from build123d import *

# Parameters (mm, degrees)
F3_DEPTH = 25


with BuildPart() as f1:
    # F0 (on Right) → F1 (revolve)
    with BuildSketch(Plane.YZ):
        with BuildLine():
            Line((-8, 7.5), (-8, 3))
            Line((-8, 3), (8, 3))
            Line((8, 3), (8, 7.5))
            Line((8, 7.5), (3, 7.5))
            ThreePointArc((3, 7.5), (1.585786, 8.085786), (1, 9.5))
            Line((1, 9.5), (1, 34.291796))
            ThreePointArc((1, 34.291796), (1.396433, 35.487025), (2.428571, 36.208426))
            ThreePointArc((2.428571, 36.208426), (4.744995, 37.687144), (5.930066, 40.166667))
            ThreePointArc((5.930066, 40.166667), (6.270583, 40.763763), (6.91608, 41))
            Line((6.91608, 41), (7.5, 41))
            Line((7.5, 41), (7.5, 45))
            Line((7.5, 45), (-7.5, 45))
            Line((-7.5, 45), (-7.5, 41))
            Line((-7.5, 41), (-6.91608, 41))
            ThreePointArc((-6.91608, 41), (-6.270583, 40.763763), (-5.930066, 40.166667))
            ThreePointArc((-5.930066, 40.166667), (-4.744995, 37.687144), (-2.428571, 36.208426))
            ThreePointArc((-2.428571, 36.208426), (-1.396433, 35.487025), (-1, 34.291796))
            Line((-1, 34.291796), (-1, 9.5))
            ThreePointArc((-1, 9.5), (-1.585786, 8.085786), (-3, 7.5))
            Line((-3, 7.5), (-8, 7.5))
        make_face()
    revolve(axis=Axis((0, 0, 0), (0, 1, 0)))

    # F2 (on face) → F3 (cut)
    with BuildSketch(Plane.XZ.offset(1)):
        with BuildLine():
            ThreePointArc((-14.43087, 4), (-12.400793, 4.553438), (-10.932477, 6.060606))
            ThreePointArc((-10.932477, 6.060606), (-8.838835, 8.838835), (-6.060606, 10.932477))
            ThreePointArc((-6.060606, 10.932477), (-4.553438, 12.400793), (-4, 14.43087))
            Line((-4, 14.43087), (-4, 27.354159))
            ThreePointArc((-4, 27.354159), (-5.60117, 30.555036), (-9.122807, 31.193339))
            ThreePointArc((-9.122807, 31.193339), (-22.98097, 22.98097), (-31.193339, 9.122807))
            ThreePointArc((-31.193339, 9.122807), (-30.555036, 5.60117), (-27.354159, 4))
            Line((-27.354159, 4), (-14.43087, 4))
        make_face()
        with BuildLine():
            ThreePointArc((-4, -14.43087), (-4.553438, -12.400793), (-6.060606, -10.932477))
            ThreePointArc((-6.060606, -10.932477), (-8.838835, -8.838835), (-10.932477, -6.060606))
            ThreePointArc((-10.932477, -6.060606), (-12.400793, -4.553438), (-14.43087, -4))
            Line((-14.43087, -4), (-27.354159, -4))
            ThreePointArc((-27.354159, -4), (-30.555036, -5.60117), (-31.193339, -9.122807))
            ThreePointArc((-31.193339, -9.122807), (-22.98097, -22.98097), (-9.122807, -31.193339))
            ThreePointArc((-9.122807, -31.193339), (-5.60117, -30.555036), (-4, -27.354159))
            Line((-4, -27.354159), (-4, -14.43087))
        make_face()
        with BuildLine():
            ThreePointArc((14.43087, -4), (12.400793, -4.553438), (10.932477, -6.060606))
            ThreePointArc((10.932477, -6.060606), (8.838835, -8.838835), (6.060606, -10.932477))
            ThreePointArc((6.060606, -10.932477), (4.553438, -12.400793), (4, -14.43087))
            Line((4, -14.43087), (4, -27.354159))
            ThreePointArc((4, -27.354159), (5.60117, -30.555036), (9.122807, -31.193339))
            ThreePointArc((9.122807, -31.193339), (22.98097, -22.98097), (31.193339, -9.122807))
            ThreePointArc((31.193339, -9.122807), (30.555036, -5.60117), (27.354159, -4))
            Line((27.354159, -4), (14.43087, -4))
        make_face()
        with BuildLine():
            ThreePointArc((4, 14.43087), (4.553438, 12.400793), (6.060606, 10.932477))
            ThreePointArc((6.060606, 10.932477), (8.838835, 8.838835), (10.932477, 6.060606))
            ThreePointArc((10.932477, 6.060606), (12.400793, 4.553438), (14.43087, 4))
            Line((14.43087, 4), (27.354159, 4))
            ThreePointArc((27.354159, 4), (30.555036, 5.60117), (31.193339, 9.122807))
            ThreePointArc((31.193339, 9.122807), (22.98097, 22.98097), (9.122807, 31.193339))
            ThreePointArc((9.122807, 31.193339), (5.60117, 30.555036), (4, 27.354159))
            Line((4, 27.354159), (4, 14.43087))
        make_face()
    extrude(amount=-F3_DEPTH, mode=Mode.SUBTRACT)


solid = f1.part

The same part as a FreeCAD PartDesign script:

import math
import FreeCAD as App
import Part
import Sketcher

doc = App.newDocument("Part")
body = doc.addObject("PartDesign::Body", "Body")

# Sketch on YZ plane
sketch1 = doc.addObject("Sketcher::SketchObject", "Sketch")
body.addObject(sketch1)
sketch1.AttachmentSupport = (doc.YZ_Plane, [""])
sketch1.MapMode = "FlatFace"
sketch1.addGeometry(Part.LineSegment(App.Vector(-8, 7.5, 0), App.Vector(-8, 3, 0)), False)
sketch1.addGeometry(Part.LineSegment(App.Vector(-8, 3, 0), App.Vector(8, 3, 0)), False)
sketch1.addGeometry(Part.LineSegment(App.Vector(8, 3, 0), App.Vector(8, 7.5, 0)), False)
sketch1.addGeometry(Part.LineSegment(App.Vector(8, 7.5, 0), App.Vector(3, 7.5, 0)), False)
sketch1.addGeometry(Part.ArcOfCircle(Part.Circle(App.Vector(3, 9.5, 0), App.Vector(0, 0, 1), 2), math.radians(180), math.radians(270)), False)
sketch1.addGeometry(Part.LineSegment(App.Vector(1, 9.5, 0), App.Vector(1, 34.3, 0)), False)
sketch1.addGeometry(Part.ArcOfCircle(Part.Circle(App.Vector(3, 34.3, 0), App.Vector(0, 0, 1), 2), math.radians(107), math.radians(180)), False)
sketch1.addGeometry(Part.ArcOfCircle(Part.Circle(App.Vector(1, 41, 0), App.Vector(0, 0, 1), 5), math.radians(-73), math.radians(-10)), False)
sketch1.addGeometry(Part.ArcOfCircle(Part.Circle(App.Vector(6.9, 40, 0), App.Vector(0, 0, 1), 1), math.radians(90), math.radians(170)), False)
sketch1.addGeometry(Part.LineSegment(App.Vector(6.9, 41, 0), App.Vector(7.5, 41, 0)), False)
sketch1.addGeometry(Part.LineSegment(App.Vector(7.5, 41, 0), App.Vector(7.5, 45, 0)), False)
sketch1.addGeometry(Part.LineSegment(App.Vector(7.5, 45, 0), App.Vector(-7.5, 45, 0)), False)
sketch1.addGeometry(Part.LineSegment(App.Vector(-7.5, 45, 0), App.Vector(-7.5, 41, 0)), False)
sketch1.addGeometry(Part.LineSegment(App.Vector(-7.5, 41, 0), App.Vector(-6.9, 41, 0)), False)
sketch1.addGeometry(Part.ArcOfCircle(Part.Circle(App.Vector(-6.9, 40, 0), App.Vector(0, 0, 1), 1), math.radians(10), math.radians(90)), False)
sketch1.addGeometry(Part.ArcOfCircle(Part.Circle(App.Vector(-1, 41, 0), App.Vector(0, 0, 1), 5), math.radians(-170), math.radians(-107)), False)
sketch1.addGeometry(Part.ArcOfCircle(Part.Circle(App.Vector(-3, 34.3, 0), App.Vector(0, 0, 1), 2), math.radians(0), math.radians(73)), False)
sketch1.addGeometry(Part.LineSegment(App.Vector(-1, 34.3, 0), App.Vector(-1, 9.5, 0)), False)
sketch1.addGeometry(Part.ArcOfCircle(Part.Circle(App.Vector(-3, 9.5, 0), App.Vector(0, 0, 1), 2), math.radians(-90), math.radians(0)), False)
sketch1.addGeometry(Part.LineSegment(App.Vector(-3, 7.5, 0), App.Vector(-8, 7.5, 0)), False)
sketch1.addConstraint(Sketcher.Constraint("Coincident", 0, 2, 1, 1))
sketch1.addConstraint(Sketcher.Constraint("Coincident", 1, 2, 2, 1))
sketch1.addConstraint(Sketcher.Constraint("Coincident", 2, 2, 3, 1))
sketch1.addConstraint(Sketcher.Constraint("Tangent", 3, 2, 4, 2))
sketch1.addConstraint(Sketcher.Constraint("Tangent", 4, 1, 5, 1))
sketch1.addConstraint(Sketcher.Constraint("Tangent", 5, 2, 6, 2))
sketch1.addConstraint(Sketcher.Constraint("Tangent", 6, 1, 7, 1))
sketch1.addConstraint(Sketcher.Constraint("Tangent", 7, 2, 8, 2))
sketch1.addConstraint(Sketcher.Constraint("Tangent", 8, 1, 9, 1))
sketch1.addConstraint(Sketcher.Constraint("Coincident", 9, 2, 10, 1))
sketch1.addConstraint(Sketcher.Constraint("Coincident", 10, 2, 11, 1))
sketch1.addConstraint(Sketcher.Constraint("Coincident", 11, 2, 12, 1))
sketch1.addConstraint(Sketcher.Constraint("Coincident", 12, 2, 13, 1))
sketch1.addConstraint(Sketcher.Constraint("Tangent", 13, 2, 14, 2))
sketch1.addConstraint(Sketcher.Constraint("Tangent", 14, 1, 15, 1))
sketch1.addConstraint(Sketcher.Constraint("Tangent", 15, 2, 16, 2))
sketch1.addConstraint(Sketcher.Constraint("Tangent", 16, 1, 17, 1))
sketch1.addConstraint(Sketcher.Constraint("Tangent", 17, 2, 18, 2))
sketch1.addConstraint(Sketcher.Constraint("Tangent", 18, 1, 19, 1))
sketch1.addConstraint(Sketcher.Constraint("Coincident", 19, 2, 0, 1))
sketch1.addConstraint(Sketcher.Constraint("Vertical", 0))
sketch1.addConstraint(Sketcher.Constraint("Horizontal", 1))
sketch1.addConstraint(Sketcher.Constraint("Vertical", 2))
sketch1.addConstraint(Sketcher.Constraint("Horizontal", 3))
sketch1.addConstraint(Sketcher.Constraint("Vertical", 5))
sketch1.addConstraint(Sketcher.Constraint("Horizontal", 9))
sketch1.addConstraint(Sketcher.Constraint("Vertical", 10))
sketch1.addConstraint(Sketcher.Constraint("Horizontal", 11))
sketch1.addConstraint(Sketcher.Constraint("Vertical", 12))
sketch1.addConstraint(Sketcher.Constraint("Horizontal", 13))
sketch1.addConstraint(Sketcher.Constraint("Vertical", 17))
sketch1.addConstraint(Sketcher.Constraint("Horizontal", 19))
sketch1.addConstraint(Sketcher.Constraint("Equal", 8, 14))
sketch1.addConstraint(Sketcher.Constraint("Equal", 7, 15))
sketch1.addConstraint(Sketcher.Constraint("Equal", 6, 16))
sketch1.addConstraint(Sketcher.Constraint("Equal", 4, 18))
sketch1.addConstraint(Sketcher.Constraint("Symmetric", 8, 3, 14, 3, -2))
sketch1.addConstraint(Sketcher.Constraint("Symmetric", 6, 3, 16, 3, -2))
sketch1.addConstraint(Sketcher.Constraint("Symmetric", 2, 2, 19, 2, -2))
sketch1.addConstraint(Sketcher.Constraint("Vertical", 6, 3, 3, 2))
sketch1.addConstraint(Sketcher.Constraint("Equal", 9, 13))
sketch1.addConstraint(Sketcher.Constraint("Radius", 4, 1.999999))
sketch1.addConstraint(Sketcher.Constraint("Radius", 8, 1.000001))
sketch1.addConstraint(Sketcher.Constraint("DistanceX", 1, 1, 1, 2, 16.0))
sketch1.addConstraint(Sketcher.Constraint("DistanceX", 3, 2, 3, 1, 5.0))
sketch1.addConstraint(Sketcher.Constraint("DistanceX", 11, 2, 11, 1, 15.0))
sketch1.addConstraint(Sketcher.Constraint("DistanceY", 10, 1, 10, 2, 4.0))
sketch1.addConstraint(Sketcher.Constraint("DistanceY", 0, 2, 0, 1, 4.5))
sketch1.addConstraint(Sketcher.Constraint("DistanceY", -1, 1, 8, 3, 39.999999))
sketch1.addConstraint(Sketcher.Constraint("DistanceY", -1, 1, 0, 2, 3.0))
sketch1.addConstraint(Sketcher.Constraint("DistanceX", 7, 3, 6, 3, 1.999998))
sketch1.addConstraint(Sketcher.Constraint("DistanceY", 4, 3, 7, 3, 31.499998))
sketch1.addConstraint(Sketcher.Constraint("Radius", 7, 4.999996))
revolution = doc.addObject("PartDesign::Revolution", "Revolution")
body.addObject(revolution)
revolution.Profile = sketch1
revolution.ReferenceAxis = (sketch1, ["H_Axis"])
revolution.Angle = 360

# Sketch on XZ plane
sketch2 = doc.addObject("Sketcher::SketchObject", "Sketch001")
body.addObject(sketch2)
sketch2.AttachmentSupport = (doc.XZ_Plane, [""])
sketch2.MapMode = "FlatFace"
sketch2.AttachmentOffset = App.Placement(App.Vector(0, 0, 1), App.Rotation())
sketch2.addGeometry(Part.ArcOfCircle(Part.Circle(App.Vector(-14.4, 8, 0), App.Vector(0, 0, 1), 4), math.radians(-90), math.radians(-29)), False)
sketch2.addGeometry(Part.ArcOfCircle(Part.Circle(App.Vector(0, 0, 0), App.Vector(0, 0, 1), 12.5), math.radians(119), math.radians(151)), False)
sketch2.addGeometry(Part.ArcOfCircle(Part.Circle(App.Vector(-8, 14.4, 0), App.Vector(0, 0, 1), 4), math.radians(-61), math.radians(0)), False)
sketch2.addGeometry(Part.LineSegment(App.Vector(-4, 14.4, 0), App.Vector(-4, 27.4, 0)), False)
sketch2.addGeometry(Part.ArcOfCircle(Part.Circle(App.Vector(-8, 27.4, 0), App.Vector(0, 0, 1), 4), math.radians(0), math.radians(106)), False)
sketch2.addGeometry(Part.ArcOfCircle(Part.Circle(App.Vector(0, 0, 0), App.Vector(0, 0, 1), 32.5), math.radians(106), math.radians(164)), False)
sketch2.addGeometry(Part.ArcOfCircle(Part.Circle(App.Vector(-27.4, 8, 0), App.Vector(0, 0, 1), 4), math.radians(164), math.radians(270)), False)
sketch2.addGeometry(Part.LineSegment(App.Vector(-27.4, 4, 0), App.Vector(-14.4, 4, 0)), False)
sketch2.addGeometry(Part.ArcOfCircle(Part.Circle(App.Vector(-8, -14.4, 0), App.Vector(0, 0, 1), 4), math.radians(0), math.radians(61)), False)
sketch2.addGeometry(Part.ArcOfCircle(Part.Circle(App.Vector(0, 0, 0), App.Vector(0, 0, 1), 12.5), math.radians(-151), math.radians(-119)), False)
sketch2.addGeometry(Part.ArcOfCircle(Part.Circle(App.Vector(-14.4, -8, 0), App.Vector(0, 0, 1), 4), math.radians(29), math.radians(90)), False)
sketch2.addGeometry(Part.LineSegment(App.Vector(-14.4, -4, 0), App.Vector(-27.4, -4, 0)), False)
sketch2.addGeometry(Part.ArcOfCircle(Part.Circle(App.Vector(-27.4, -8, 0), App.Vector(0, 0, 1), 4), math.radians(90), math.radians(196)), False)
sketch2.addGeometry(Part.ArcOfCircle(Part.Circle(App.Vector(0, 0, 0), App.Vector(0, 0, 1), 32.5), math.radians(-164), math.radians(-106)), False)
sketch2.addGeometry(Part.ArcOfCircle(Part.Circle(App.Vector(-8, -27.4, 0), App.Vector(0, 0, 1), 4), math.radians(-106), math.radians(0)), False)
sketch2.addGeometry(Part.LineSegment(App.Vector(-4, -27.4, 0), App.Vector(-4, -14.4, 0)), False)
sketch2.addGeometry(Part.ArcOfCircle(Part.Circle(App.Vector(14.4, -8, 0), App.Vector(0, 0, 1), 4), math.radians(90), math.radians(151)), False)
sketch2.addGeometry(Part.ArcOfCircle(Part.Circle(App.Vector(0, 0, 0), App.Vector(0, 0, 1), 12.5), math.radians(-61), math.radians(-29)), False)
sketch2.addGeometry(Part.ArcOfCircle(Part.Circle(App.Vector(8, -14.4, 0), App.Vector(0, 0, 1), 4), math.radians(119), math.radians(180)), False)
sketch2.addGeometry(Part.LineSegment(App.Vector(4, -14.4, 0), App.Vector(4, -27.4, 0)), False)
sketch2.addGeometry(Part.ArcOfCircle(Part.Circle(App.Vector(8, -27.4, 0), App.Vector(0, 0, 1), 4), math.radians(-180), math.radians(-74)), False)
sketch2.addGeometry(Part.ArcOfCircle(Part.Circle(App.Vector(0, 0, 0), App.Vector(0, 0, 1), 32.5), math.radians(-74), math.radians(-16)), False)
sketch2.addGeometry(Part.ArcOfCircle(Part.Circle(App.Vector(27.4, -8, 0), App.Vector(0, 0, 1), 4), math.radians(-16), math.radians(90)), False)
sketch2.addGeometry(Part.LineSegment(App.Vector(27.4, -4, 0), App.Vector(14.4, -4, 0)), False)
sketch2.addGeometry(Part.ArcOfCircle(Part.Circle(App.Vector(8, 14.4, 0), App.Vector(0, 0, 1), 4), math.radians(180), math.radians(241)), False)
sketch2.addGeometry(Part.ArcOfCircle(Part.Circle(App.Vector(0, 0, 0), App.Vector(0, 0, 1), 12.5), math.radians(29), math.radians(61)), False)
sketch2.addGeometry(Part.ArcOfCircle(Part.Circle(App.Vector(14.4, 8, 0), App.Vector(0, 0, 1), 4), math.radians(-151), math.radians(-90)), False)
sketch2.addGeometry(Part.LineSegment(App.Vector(14.4, 4, 0), App.Vector(27.4, 4, 0)), False)
sketch2.addGeometry(Part.ArcOfCircle(Part.Circle(App.Vector(27.4, 8, 0), App.Vector(0, 0, 1), 4), math.radians(-90), math.radians(16)), False)
sketch2.addGeometry(Part.ArcOfCircle(Part.Circle(App.Vector(0, 0, 0), App.Vector(0, 0, 1), 32.5), math.radians(16), math.radians(74)), False)
sketch2.addGeometry(Part.ArcOfCircle(Part.Circle(App.Vector(8, 27.4, 0), App.Vector(0, 0, 1), 4), math.radians(74), math.radians(180)), False)
sketch2.addGeometry(Part.LineSegment(App.Vector(4, 27.4, 0), App.Vector(4, 14.4, 0)), False)
sketch2.addConstraint(Sketcher.Constraint("Tangent", 0, 2, 1, 2))
sketch2.addConstraint(Sketcher.Constraint("Tangent", 1, 1, 2, 1))
sketch2.addConstraint(Sketcher.Constraint("Tangent", 2, 2, 3, 1))
sketch2.addConstraint(Sketcher.Constraint("Tangent", 3, 2, 4, 1))
sketch2.addConstraint(Sketcher.Constraint("Tangent", 4, 2, 5, 1))
sketch2.addConstraint(Sketcher.Constraint("Tangent", 5, 2, 6, 1))
sketch2.addConstraint(Sketcher.Constraint("Tangent", 6, 2, 7, 1))
sketch2.addConstraint(Sketcher.Constraint("Tangent", 7, 2, 0, 1))
sketch2.addConstraint(Sketcher.Constraint("Tangent", 8, 2, 9, 2))
sketch2.addConstraint(Sketcher.Constraint("Tangent", 9, 1, 10, 1))
sketch2.addConstraint(Sketcher.Constraint("Tangent", 10, 2, 11, 1))
sketch2.addConstraint(Sketcher.Constraint("Tangent", 11, 2, 12, 1))
sketch2.addConstraint(Sketcher.Constraint("Tangent", 12, 2, 13, 1))
sketch2.addConstraint(Sketcher.Constraint("Tangent", 13, 2, 14, 1))
sketch2.addConstraint(Sketcher.Constraint("Tangent", 14, 2, 15, 1))
sketch2.addConstraint(Sketcher.Constraint("Tangent", 15, 2, 8, 1))
sketch2.addConstraint(Sketcher.Constraint("Tangent", 16, 2, 17, 2))
sketch2.addConstraint(Sketcher.Constraint("Tangent", 17, 1, 18, 1))
sketch2.addConstraint(Sketcher.Constraint("Tangent", 18, 2, 19, 1))
sketch2.addConstraint(Sketcher.Constraint("Tangent", 19, 2, 20, 1))
sketch2.addConstraint(Sketcher.Constraint("Tangent", 20, 2, 21, 1))
sketch2.addConstraint(Sketcher.Constraint("Tangent", 21, 2, 22, 1))
sketch2.addConstraint(Sketcher.Constraint("Tangent", 22, 2, 23, 1))
sketch2.addConstraint(Sketcher.Constraint("Tangent", 23, 2, 16, 1))
sketch2.addConstraint(Sketcher.Constraint("Tangent", 24, 2, 25, 2))
sketch2.addConstraint(Sketcher.Constraint("Tangent", 25, 1, 26, 1))
sketch2.addConstraint(Sketcher.Constraint("Tangent", 26, 2, 27, 1))
sketch2.addConstraint(Sketcher.Constraint("Tangent", 27, 2, 28, 1))
sketch2.addConstraint(Sketcher.Constraint("Tangent", 28, 2, 29, 1))
sketch2.addConstraint(Sketcher.Constraint("Tangent", 29, 2, 30, 1))
sketch2.addConstraint(Sketcher.Constraint("Tangent", 30, 2, 31, 1))
sketch2.addConstraint(Sketcher.Constraint("Tangent", 31, 2, 24, 1))
sketch2.addConstraint(Sketcher.Constraint("Vertical", 3))
sketch2.addConstraint(Sketcher.Constraint("Horizontal", 7))
sketch2.addConstraint(Sketcher.Constraint("Horizontal", 11))
sketch2.addConstraint(Sketcher.Constraint("Vertical", 15))
sketch2.addConstraint(Sketcher.Constraint("Vertical", 19))
sketch2.addConstraint(Sketcher.Constraint("Horizontal", 23))
sketch2.addConstraint(Sketcher.Constraint("Horizontal", 27))
sketch2.addConstraint(Sketcher.Constraint("Vertical", 31))
sketch2.addConstraint(Sketcher.Constraint("Coincident", 5, 3, -1, 1))
sketch2.addConstraint(Sketcher.Constraint("Coincident", 13, 3, -1, 1))
sketch2.addConstraint(Sketcher.Constraint("Coincident", 21, 3, -1, 1))
sketch2.addConstraint(Sketcher.Constraint("Coincident", 29, 3, -1, 1))
sketch2.addConstraint(Sketcher.Constraint("Coincident", 17, 3, 5, 3))
sketch2.addConstraint(Sketcher.Constraint("Coincident", 21, 3, 1, 3))
sketch2.addConstraint(Sketcher.Constraint("Coincident", 25, 3, 13, 3))
sketch2.addConstraint(Sketcher.Constraint("Equal", 0, 2))
sketch2.addConstraint(Sketcher.Constraint("Equal", 2, 4))
sketch2.addConstraint(Sketcher.Constraint("Equal", 4, 6))
sketch2.addConstraint(Sketcher.Constraint("Equal", 6, 8))
sketch2.addConstraint(Sketcher.Constraint("Equal", 1, 9))
sketch2.addConstraint(Sketcher.Constraint("Equal", 8, 10))
sketch2.addConstraint(Sketcher.Constraint("Equal", 10, 12))
sketch2.addConstraint(Sketcher.Constraint("Equal", 5, 13))
sketch2.addConstraint(Sketcher.Constraint("Equal", 12, 14))
sketch2.addConstraint(Sketcher.Constraint("Equal", 14, 16))
sketch2.addConstraint(Sketcher.Constraint("Equal", 9, 17))
sketch2.addConstraint(Sketcher.Constraint("Equal", 16, 18))
sketch2.addConstraint(Sketcher.Constraint("Equal", 18, 20))
sketch2.addConstraint(Sketcher.Constraint("Equal", 13, 21))
sketch2.addConstraint(Sketcher.Constraint("Equal", 20, 22))
sketch2.addConstraint(Sketcher.Constraint("Equal", 22, 24))
sketch2.addConstraint(Sketcher.Constraint("Equal", 17, 25))
sketch2.addConstraint(Sketcher.Constraint("Equal", 24, 26))
sketch2.addConstraint(Sketcher.Constraint("Equal", 26, 28))
sketch2.addConstraint(Sketcher.Constraint("Equal", 21, 29))
sketch2.addConstraint(Sketcher.Constraint("Equal", 28, 30))
sketch2.addConstraint(Sketcher.Constraint("Symmetric", 8, 3, 24, 3, -1, 1))
sketch2.addConstraint(Sketcher.Constraint("Symmetric", 10, 3, 26, 3, -1, 1))
sketch2.addConstraint(Sketcher.Constraint("Horizontal", 12, 3, 16, 3))
sketch2.addConstraint(Sketcher.Constraint("Horizontal", 8, 3, 18, 3))
sketch2.addConstraint(Sketcher.Constraint("Horizontal", 2, 3, 24, 3))
sketch2.addConstraint(Sketcher.Constraint("Horizontal", 6, 3, 26, 3))
sketch2.addConstraint(Sketcher.Constraint("Equal", 27, 3))
sketch2.addConstraint(Sketcher.Constraint("Radius", 0, 3.999999))
sketch2.addConstraint(Sketcher.Constraint("DistanceY", -1, 1, 0, 3, 7.999999))
sketch2.addConstraint(Sketcher.Constraint("Radius", 1, 12.49999))
sketch2.addConstraint(Sketcher.Constraint("Radius", 5, 32.500005))
pocket1 = doc.addObject("PartDesign::Pocket", "Pocket")
body.addObject(pocket1)
pocket1.Profile = sketch2
pocket1.Length = 25

doc.recompute()
